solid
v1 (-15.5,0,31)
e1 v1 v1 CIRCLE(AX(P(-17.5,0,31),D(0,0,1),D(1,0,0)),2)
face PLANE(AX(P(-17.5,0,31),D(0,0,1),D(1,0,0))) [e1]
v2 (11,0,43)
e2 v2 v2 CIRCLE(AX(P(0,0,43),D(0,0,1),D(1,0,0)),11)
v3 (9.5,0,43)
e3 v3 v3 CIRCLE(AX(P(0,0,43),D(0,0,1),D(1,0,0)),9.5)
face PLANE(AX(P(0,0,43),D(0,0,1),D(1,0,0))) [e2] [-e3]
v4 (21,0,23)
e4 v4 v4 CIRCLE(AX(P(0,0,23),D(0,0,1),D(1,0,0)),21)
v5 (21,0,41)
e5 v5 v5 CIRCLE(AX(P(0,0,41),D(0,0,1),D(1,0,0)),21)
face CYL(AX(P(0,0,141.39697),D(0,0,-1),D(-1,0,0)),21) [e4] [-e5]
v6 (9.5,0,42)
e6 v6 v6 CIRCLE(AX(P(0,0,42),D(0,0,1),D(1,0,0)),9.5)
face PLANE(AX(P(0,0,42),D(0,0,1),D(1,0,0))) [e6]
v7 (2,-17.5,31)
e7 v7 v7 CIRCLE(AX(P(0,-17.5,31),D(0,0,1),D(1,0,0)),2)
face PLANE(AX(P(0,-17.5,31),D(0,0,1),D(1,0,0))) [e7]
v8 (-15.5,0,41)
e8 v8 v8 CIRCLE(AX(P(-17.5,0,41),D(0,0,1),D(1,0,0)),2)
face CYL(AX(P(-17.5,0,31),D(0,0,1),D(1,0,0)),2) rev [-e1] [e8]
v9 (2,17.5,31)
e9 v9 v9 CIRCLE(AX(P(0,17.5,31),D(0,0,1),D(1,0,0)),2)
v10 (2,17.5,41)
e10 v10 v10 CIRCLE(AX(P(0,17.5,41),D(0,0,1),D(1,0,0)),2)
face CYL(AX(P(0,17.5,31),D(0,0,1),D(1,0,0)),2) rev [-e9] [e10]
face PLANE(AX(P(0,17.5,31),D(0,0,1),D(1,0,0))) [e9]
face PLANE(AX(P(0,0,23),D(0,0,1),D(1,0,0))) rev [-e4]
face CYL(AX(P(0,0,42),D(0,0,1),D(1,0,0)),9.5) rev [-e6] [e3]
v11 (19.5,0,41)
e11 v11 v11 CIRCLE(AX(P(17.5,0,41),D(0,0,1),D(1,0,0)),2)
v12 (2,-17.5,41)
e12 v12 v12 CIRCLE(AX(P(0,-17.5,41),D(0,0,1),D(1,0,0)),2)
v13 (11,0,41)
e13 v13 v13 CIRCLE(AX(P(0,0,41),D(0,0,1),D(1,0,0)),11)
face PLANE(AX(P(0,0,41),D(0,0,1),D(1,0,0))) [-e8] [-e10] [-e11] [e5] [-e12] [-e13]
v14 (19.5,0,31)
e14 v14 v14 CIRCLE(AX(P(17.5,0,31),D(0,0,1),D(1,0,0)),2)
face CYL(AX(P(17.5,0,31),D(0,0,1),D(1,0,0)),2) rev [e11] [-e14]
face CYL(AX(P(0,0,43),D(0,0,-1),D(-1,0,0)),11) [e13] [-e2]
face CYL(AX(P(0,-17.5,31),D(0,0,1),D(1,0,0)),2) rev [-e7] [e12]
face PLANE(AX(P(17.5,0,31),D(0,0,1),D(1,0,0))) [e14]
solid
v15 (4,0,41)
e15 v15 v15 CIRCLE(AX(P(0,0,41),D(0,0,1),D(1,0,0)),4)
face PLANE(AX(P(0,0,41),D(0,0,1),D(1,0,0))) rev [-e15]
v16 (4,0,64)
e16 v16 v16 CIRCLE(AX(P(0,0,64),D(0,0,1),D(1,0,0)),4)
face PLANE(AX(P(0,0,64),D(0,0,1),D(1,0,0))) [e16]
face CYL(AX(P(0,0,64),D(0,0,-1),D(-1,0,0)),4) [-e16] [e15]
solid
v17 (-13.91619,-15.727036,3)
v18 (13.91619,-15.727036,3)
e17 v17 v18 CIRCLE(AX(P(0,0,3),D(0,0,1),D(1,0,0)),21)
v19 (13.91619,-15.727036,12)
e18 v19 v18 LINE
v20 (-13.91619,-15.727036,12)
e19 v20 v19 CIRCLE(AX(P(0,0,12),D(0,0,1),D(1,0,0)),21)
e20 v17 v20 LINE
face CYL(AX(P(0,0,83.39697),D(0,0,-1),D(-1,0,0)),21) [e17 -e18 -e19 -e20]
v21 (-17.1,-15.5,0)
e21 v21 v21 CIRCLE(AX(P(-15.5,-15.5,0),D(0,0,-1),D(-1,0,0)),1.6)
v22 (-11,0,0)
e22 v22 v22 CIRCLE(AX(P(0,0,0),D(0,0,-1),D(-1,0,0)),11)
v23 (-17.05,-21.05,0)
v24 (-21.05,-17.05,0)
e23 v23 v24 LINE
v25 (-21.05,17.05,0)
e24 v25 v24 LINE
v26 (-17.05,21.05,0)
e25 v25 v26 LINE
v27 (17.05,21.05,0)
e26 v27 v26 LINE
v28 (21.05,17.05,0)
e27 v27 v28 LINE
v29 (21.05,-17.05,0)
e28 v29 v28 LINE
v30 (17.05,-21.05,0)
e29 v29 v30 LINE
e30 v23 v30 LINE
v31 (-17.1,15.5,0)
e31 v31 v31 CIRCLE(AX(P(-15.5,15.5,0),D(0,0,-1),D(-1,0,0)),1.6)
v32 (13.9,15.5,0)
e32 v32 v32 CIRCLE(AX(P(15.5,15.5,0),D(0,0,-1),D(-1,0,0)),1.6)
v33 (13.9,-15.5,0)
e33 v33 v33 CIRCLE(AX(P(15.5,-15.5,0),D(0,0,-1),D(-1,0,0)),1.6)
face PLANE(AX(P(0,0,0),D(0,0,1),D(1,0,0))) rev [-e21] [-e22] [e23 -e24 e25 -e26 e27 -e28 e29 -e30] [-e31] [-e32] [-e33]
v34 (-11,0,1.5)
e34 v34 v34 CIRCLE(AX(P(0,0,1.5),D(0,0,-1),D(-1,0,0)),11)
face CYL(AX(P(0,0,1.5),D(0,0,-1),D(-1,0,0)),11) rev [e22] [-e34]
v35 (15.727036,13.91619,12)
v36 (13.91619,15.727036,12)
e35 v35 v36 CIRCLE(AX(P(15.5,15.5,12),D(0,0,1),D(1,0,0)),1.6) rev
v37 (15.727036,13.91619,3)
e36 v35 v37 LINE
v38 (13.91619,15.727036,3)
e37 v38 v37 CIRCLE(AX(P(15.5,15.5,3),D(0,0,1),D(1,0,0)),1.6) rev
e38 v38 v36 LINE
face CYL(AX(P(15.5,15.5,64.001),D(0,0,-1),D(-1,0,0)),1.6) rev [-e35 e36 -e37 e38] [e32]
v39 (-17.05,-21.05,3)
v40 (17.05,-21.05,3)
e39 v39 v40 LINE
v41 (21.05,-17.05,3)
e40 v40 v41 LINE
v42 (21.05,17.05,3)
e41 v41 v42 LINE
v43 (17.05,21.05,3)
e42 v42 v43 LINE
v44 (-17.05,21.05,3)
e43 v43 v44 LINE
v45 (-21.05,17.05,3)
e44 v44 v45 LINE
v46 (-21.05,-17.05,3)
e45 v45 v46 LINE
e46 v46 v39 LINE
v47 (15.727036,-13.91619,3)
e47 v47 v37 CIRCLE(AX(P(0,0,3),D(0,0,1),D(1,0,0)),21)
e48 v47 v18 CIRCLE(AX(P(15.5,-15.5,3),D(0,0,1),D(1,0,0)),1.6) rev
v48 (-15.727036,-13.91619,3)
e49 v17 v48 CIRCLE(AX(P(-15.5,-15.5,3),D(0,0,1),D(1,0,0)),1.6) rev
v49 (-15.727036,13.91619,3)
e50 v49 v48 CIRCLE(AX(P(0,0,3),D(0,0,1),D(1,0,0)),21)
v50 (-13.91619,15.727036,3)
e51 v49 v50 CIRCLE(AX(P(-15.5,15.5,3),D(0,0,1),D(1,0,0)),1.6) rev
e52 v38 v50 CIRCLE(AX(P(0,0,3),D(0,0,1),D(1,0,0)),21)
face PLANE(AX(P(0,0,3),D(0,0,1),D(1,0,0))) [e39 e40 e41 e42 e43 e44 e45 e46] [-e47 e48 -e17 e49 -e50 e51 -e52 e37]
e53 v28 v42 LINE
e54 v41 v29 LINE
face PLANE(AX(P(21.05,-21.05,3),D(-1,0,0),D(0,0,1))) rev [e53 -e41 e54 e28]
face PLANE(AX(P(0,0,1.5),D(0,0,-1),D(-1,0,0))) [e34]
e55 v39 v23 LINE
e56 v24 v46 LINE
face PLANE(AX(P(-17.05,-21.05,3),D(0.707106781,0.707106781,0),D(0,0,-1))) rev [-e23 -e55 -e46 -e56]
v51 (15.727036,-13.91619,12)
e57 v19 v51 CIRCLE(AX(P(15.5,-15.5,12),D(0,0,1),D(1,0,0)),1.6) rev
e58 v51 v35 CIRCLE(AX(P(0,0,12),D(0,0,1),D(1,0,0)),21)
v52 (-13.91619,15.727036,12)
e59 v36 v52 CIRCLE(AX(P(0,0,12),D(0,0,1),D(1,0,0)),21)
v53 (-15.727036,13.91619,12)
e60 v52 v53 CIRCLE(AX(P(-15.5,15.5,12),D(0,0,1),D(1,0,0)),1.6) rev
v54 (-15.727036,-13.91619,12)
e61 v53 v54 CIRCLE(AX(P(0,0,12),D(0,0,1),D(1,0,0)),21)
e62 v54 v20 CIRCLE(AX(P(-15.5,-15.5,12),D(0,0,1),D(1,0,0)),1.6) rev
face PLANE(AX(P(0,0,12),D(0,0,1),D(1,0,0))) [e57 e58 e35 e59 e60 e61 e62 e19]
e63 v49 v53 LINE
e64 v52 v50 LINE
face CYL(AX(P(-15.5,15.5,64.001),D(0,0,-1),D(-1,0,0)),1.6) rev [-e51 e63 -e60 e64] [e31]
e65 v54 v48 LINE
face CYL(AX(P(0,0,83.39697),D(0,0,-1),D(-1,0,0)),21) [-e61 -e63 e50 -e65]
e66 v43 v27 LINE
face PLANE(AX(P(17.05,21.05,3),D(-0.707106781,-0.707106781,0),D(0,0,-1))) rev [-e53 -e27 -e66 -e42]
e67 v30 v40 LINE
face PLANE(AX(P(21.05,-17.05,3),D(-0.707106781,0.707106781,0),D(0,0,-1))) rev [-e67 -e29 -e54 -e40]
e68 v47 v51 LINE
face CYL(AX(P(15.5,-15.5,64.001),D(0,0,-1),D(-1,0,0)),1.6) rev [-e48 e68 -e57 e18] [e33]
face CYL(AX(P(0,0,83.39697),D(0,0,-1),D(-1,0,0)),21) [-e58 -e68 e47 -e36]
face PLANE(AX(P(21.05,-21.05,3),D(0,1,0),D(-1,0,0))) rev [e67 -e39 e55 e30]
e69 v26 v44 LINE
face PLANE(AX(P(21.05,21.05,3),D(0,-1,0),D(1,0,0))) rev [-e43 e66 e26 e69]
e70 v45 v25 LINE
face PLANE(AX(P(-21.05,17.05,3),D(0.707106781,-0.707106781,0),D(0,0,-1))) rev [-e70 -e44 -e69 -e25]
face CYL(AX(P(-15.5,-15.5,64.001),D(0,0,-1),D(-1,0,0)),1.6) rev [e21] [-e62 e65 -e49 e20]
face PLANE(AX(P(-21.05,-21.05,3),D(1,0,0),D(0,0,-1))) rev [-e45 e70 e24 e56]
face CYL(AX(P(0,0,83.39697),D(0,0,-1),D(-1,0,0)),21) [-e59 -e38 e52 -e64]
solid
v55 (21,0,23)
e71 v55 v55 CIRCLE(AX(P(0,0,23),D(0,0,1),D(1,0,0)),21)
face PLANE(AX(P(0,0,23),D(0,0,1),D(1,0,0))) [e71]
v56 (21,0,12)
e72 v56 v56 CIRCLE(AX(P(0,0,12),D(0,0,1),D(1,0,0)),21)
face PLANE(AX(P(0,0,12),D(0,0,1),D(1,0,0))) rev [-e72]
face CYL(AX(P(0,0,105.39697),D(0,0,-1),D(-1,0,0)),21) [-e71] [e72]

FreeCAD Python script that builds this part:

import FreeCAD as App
import Part
import Sketcher
Q = App.Units.Quantity


def edges_at(feature, points):
    """Names of the edges that pass closest to the given points."""
    edges = feature.Shape.Edges
    near = lambda p: min(range(len(edges)), key=lambda i: edges[i].distToShape(Part.Vertex(*p))[0])
    return sorted({f"Edge{near(p) + 1}" for p in points})

doc = App.newDocument("Part")
body = doc.addObject("PartDesign::Body", "Body")

# Sketch on XY plane
sketch1 = body.newObject("Sketcher::SketchObject", "Sketch")
sketch1.AttachmentSupport = (doc.getObject("XY_Plane"), [""])
sketch1.MapMode = "FlatFace"
sketch1.addGeometry([
    Part.LineSegment(App.Vector(-21, 21, 0), App.Vector(-21, -21, 0)),
    Part.LineSegment(App.Vector(-21, -21, 0), App.Vector(21, -21, 0)),
    Part.LineSegment(App.Vector(21, -21, 0), App.Vector(21, 21, 0)),
    Part.LineSegment(App.Vector(21, 21, 0), App.Vector(-21, 21, 0)),
], False)
sketch1.addConstraint([
    Sketcher.Constraint("Coincident", 0, 2, 1, 1),
    Sketcher.Constraint("Coincident", 1, 2, 2, 1),
    Sketcher.Constraint("Coincident", 2, 2, 3, 1),
    Sketcher.Constraint("Coincident", 3, 2, 0, 1),
    Sketcher.Constraint("Vertical", 0),
    Sketcher.Constraint("Horizontal", 1),
    Sketcher.Constraint("Vertical", 2),
    Sketcher.Constraint("Horizontal", 3),
    Sketcher.Constraint("Symmetric", 0, 2, 2, 2, -1, 1),
    Sketcher.Constraint("Equal", 3, 0),
    Sketcher.Constraint("DistanceX", 1, 1, 1, 2, Q("42.1 mm")),
])
pad1 = body.newObject("PartDesign::Pad", "Pad")
pad1.Profile = sketch1
pad1.Length = 3

# Sketch on XY plane
sketch2 = body.newObject("Sketcher::SketchObject", "Sketch001")
sketch2.AttachmentSupport = (doc.getObject("XY_Plane"), [""])
sketch2.MapMode = "FlatFace"
sketch2.AttachmentOffset = App.Placement(App.Vector(0, 0, 3), App.Rotation())
sketch2.addGeometry(Part.Circle(App.Vector(0, 0, 0), App.Vector(0, 0, 1), 21), False)
sketch2.addConstraint([
    Sketcher.Constraint("Coincident", 0, 3, -1, 1),
    Sketcher.Constraint("Diameter", 0, Q("42 mm")),
])
pad2 = body.newObject("PartDesign::Pad", "Pad001")
pad2.Profile = sketch2
pad2.Length = 9

# Sketch on XY plane
sketch3 = body.newObject("Sketcher::SketchObject", "Sketch002")
sketch3.AttachmentSupport = (doc.getObject("XY_Plane"), [""])
sketch3.MapMode = "FlatFace"
sketch3.AttachmentOffset = App.Placement(App.Vector(0, 0, 12), App.Rotation())
sketch3.addGeometry([
    Part.Circle(App.Vector(15.5, 15.5, 0), App.Vector(0, 0, 1), 1.6),
    Part.Circle(App.Vector(-15.5, 15.5, 0), App.Vector(0, 0, 1), 1.6),
    Part.Circle(App.Vector(-15.5, -15.5, 0), App.Vector(0, 0, 1), 1.6),
    Part.Circle(App.Vector(15.5, -15.5, 0), App.Vector(0, 0, 1), 1.6),
], False)
sketch3.addConstraint([
    Sketcher.Constraint("Equal", 0, 1),
    Sketcher.Constraint("Equal", 1, 2),
    Sketcher.Constraint("Equal", 2, 3),
    Sketcher.Constraint("Symmetric", 0, 3, 2, 3, -1, 1),
    Sketcher.Constraint("Symmetric", 1, 3, 3, 3, -1, 1),
    Sketcher.Constraint("Symmetric", 0, 3, 1, 3, -2),
    Sketcher.Constraint("Diameter", 0, Q("3.2 mm")),
    Sketcher.Constraint("DistanceX", 1, 3, 0, 3, Q("31 mm")),
    Sketcher.Constraint("DistanceY", 2, 3, 1, 3, Q("31 mm")),
])
pocket1 = body.newObject("PartDesign::Pocket", "Pocket")
pocket1.Profile = sketch3
pocket1.Length = 12
doc.recompute()

chamfer = body.newObject("PartDesign::Chamfer", "Chamfer")
chamfer.Base = (pocket1, edges_at(pocket1, [
    (-21.05, 21.05, 1.5),
    (21.05, 21.05, 1.5),
    (21.05, -21.05, 1.5),
    (-21.05, -21.05, 1.5),
]))
chamfer.Size = 4

# Sketch on XY plane
sketch4 = body.newObject("Sketcher::SketchObject", "Sketch003")
sketch4.AttachmentSupport = (doc.getObject("XY_Plane"), [""])
sketch4.MapMode = "FlatFace"
sketch4.addGeometry(Part.Circle(App.Vector(0, 0, 0), App.Vector(0, 0, 1), 11), False)
sketch4.addConstraint([
    Sketcher.Constraint("Coincident", 0, 3, -1, 1),
    Sketcher.Constraint("Diameter", 0, Q("22 mm")),
])
pocket2 = body.newObject("PartDesign::Pocket", "Pocket001")
pocket2.Profile = sketch4
pocket2.Length = 1.5
pocket2.Reversed = True
body2 = doc.addObject("PartDesign::Body", "Body001")

# Sketch on XY plane
sketch5 = body2.newObject("Sketcher::SketchObject", "Sketch004")
sketch5.AttachmentSupport = (doc.getObject("XY_Plane001"), [""])
sketch5.MapMode = "FlatFace"
sketch5.AttachmentOffset = App.Placement(App.Vector(0, 0, 12), App.Rotation())
sketch5.addGeometry(Part.Circle(App.Vector(0, 0, 0), App.Vector(0, 0, 1), 21), False)
sketch5.addConstraint([
    Sketcher.Constraint("Coincident", 0, 3, -1, 1),
    Sketcher.Constraint("Diameter", 0, Q("42 mm")),
])
pad3 = body2.newObject("PartDesign::Pad", "Pad002")
pad3.Profile = sketch5
pad3.Length = 11
body3 = doc.addObject("PartDesign::Body", "Body002")

# Sketch on XY plane
sketch6 = body3.newObject("Sketcher::SketchObject", "Sketch005")
sketch6.AttachmentSupport = (doc.getObject("XY_Plane002"), [""])
sketch6.MapMode = "FlatFace"
sketch6.AttachmentOffset = App.Placement(App.Vector(0, 0, 23), App.Rotation())
sketch6.addGeometry(Part.Circle(App.Vector(0, 0, 0), App.Vector(0, 0, 1), 21), False)
sketch6.addConstraint([
    Sketcher.Constraint("Coincident", 0, 3, -1, 1),
    Sketcher.Constraint("Diameter", 0, Q("42 mm")),
])
pad4 = body3.newObject("PartDesign::Pad", "Pad003")
pad4.Profile = sketch6
pad4.Length = 18

# Sketch on XY plane
sketch7 = body3.newObject("Sketcher::SketchObject", "Sketch006")
sketch7.AttachmentSupport = (doc.getObject("XY_Plane002"), [""])
sketch7.MapMode = "FlatFace"
sketch7.AttachmentOffset = App.Placement(App.Vector(0, 0, 41), App.Rotation())
sketch7.addGeometry(Part.Circle(App.Vector(0, 0, 0), App.Vector(0, 0, 1), 11), False)
sketch7.addConstraint([
    Sketcher.Constraint("Coincident", 0, 3, -1, 1),
    Sketcher.Constraint("Diameter", 0, Q("22 mm")),
])
pad5 = body3.newObject("PartDesign::Pad", "Pad004")
pad5.Profile = sketch7
pad5.Length = 2

# Sketch on XY plane
sketch8 = body3.newObject("Sketcher::SketchObject", "Sketch007")
sketch8.AttachmentSupport = (doc.getObject("XY_Plane002"), [""])
sketch8.MapMode = "FlatFace"
sketch8.AttachmentOffset = App.Placement(App.Vector(0, 0, 43), App.Rotation())
sketch8.addGeometry(Part.Circle(App.Vector(0, 0, 0), App.Vector(0, 0, 1), 10), False)
sketch8.addConstraint([
    Sketcher.Constraint("Coincident", 0, 3, -1, 1),
    Sketcher.Constraint("Diameter", 0, Q("19 mm")),
])
pocket3 = body3.newObject("PartDesign::Pocket", "Pocket002")
pocket3.Profile = sketch8
pocket3.Length = 1

# Sketch on XY plane
sketch9 = body3.newObject("Sketcher::SketchObject", "Sketch008")
sketch9.AttachmentSupport = (doc.getObject("XY_Plane002"), [""])
sketch9.MapMode = "FlatFace"
sketch9.AttachmentOffset = App.Placement(App.Vector(0, 0, 41), App.Rotation())
sketch9.addGeometry([
    Part.Circle(App.Vector(0, 17.5, 0), App.Vector(0, 0, 1), 2),
    Part.Circle(App.Vector(17.5, 0, 0), App.Vector(0, 0, 1), 2),
    Part.Circle(App.Vector(0, -17.5, 0), App.Vector(0, 0, 1), 2),
    Part.Circle(App.Vector(-17.5, 0, 0), App.Vector(0, 0, 1), 2),
], False)
sketch9.addConstraint([
    Sketcher.Constraint("Equal", 0, 1),
    Sketcher.Constraint("Equal", 1, 2),
    Sketcher.Constraint("Equal", 2, 3),
    Sketcher.Constraint("Symmetric", 0, 3, 2, 3, -1, 1),
    Sketcher.Constraint("Symmetric", 1, 3, 3, 3, -1, 1),
    Sketcher.Constraint("PointOnObject", 0, 3, -2),
    Sketcher.Constraint("PointOnObject", 1, 3, -1),
    Sketcher.Constraint("Diameter", 0, Q("4 mm")),
    Sketcher.Constraint("DistanceY", 2, 3, 0, 3, Q("35 mm")),
    Sketcher.Constraint("DistanceX", 3, 3, 1, 3, Q("35 mm")),
])
pocket4 = body3.newObject("PartDesign::Pocket", "Pocket003")
pocket4.Profile = sketch9
pocket4.Length = 10
body4 = doc.addObject("PartDesign::Body", "Body003")

# Sketch on XY plane
sketch10 = body4.newObject("Sketcher::SketchObject", "Sketch009")
sketch10.AttachmentSupport = (doc.getObject("XY_Plane003"), [""])
sketch10.MapMode = "FlatFace"
sketch10.AttachmentOffset = App.Placement(App.Vector(0, 0, 41), App.Rotation())
sketch10.addGeometry(Part.Circle(App.Vector(0, 0, 0), App.Vector(0, 0, 1), 4), False)
sketch10.addConstraint([
    Sketcher.Constraint("Coincident", 0, 3, -1, 1),
    Sketcher.Constraint("Diameter", 0, Q("8 mm")),
])
pad6 = body4.newObject("PartDesign::Pad", "Pad005")
pad6.Profile = sketch10
pad6.Length = 23

doc.recompute()
